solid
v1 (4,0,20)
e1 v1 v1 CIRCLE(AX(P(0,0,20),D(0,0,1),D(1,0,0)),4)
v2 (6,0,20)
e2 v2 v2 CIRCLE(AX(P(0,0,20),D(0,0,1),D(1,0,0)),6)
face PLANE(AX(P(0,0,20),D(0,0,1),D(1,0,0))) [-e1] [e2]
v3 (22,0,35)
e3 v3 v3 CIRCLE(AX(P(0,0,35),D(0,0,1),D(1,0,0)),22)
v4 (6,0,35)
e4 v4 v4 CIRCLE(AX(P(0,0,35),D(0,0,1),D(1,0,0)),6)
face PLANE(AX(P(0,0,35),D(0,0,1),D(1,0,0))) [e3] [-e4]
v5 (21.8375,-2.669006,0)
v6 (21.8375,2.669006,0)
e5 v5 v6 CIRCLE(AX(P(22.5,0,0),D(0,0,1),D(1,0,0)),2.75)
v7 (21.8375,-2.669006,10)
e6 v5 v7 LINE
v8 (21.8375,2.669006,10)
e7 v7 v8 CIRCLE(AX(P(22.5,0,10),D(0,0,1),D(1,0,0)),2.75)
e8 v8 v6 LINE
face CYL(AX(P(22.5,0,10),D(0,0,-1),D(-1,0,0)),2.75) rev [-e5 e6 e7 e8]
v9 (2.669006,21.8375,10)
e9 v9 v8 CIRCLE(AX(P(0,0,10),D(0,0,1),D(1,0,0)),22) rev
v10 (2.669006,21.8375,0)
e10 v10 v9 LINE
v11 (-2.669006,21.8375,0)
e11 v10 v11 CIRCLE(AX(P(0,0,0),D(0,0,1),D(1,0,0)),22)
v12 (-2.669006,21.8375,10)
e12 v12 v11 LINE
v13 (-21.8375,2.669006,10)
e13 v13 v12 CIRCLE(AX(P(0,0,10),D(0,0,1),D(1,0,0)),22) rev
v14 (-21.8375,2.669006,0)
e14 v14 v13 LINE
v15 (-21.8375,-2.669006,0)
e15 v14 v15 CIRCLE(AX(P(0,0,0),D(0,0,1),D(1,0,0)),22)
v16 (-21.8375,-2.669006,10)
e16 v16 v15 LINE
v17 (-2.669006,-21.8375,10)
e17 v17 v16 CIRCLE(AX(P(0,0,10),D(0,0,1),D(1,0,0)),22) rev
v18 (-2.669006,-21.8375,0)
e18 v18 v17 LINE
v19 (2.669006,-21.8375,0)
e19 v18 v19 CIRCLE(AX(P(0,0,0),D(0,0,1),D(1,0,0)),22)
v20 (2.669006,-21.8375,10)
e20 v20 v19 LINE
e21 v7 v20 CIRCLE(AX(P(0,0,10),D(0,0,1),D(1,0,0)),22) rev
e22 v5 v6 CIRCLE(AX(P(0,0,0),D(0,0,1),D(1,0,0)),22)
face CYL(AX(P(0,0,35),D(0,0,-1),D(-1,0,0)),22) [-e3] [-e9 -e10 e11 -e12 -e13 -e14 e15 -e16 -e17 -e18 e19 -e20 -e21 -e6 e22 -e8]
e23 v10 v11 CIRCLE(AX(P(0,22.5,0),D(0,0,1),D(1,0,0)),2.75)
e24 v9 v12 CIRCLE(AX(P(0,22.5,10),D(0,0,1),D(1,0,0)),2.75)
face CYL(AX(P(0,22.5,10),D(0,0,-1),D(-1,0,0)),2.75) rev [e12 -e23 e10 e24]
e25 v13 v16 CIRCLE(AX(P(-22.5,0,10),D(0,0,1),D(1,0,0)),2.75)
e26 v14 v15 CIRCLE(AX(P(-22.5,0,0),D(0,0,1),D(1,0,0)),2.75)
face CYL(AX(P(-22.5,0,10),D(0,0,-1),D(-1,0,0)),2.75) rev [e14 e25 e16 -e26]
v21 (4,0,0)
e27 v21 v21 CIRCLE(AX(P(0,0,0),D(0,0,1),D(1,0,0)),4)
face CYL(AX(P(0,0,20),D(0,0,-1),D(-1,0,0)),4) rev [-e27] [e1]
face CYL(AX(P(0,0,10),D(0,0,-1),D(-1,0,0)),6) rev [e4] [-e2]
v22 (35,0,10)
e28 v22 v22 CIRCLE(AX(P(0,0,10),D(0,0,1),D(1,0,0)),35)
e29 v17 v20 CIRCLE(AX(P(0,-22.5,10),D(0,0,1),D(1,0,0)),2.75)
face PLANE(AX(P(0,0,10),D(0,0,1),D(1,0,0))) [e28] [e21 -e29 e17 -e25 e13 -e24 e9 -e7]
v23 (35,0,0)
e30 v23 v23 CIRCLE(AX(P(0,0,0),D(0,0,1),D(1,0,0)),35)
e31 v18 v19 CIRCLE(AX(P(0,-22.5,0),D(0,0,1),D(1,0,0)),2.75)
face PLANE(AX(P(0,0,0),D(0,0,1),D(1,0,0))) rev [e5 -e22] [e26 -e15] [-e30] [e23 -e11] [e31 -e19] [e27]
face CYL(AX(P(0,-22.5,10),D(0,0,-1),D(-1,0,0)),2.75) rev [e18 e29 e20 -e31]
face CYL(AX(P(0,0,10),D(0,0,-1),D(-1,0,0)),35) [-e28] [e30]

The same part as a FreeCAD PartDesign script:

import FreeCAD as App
import Part
import Sketcher

V = App.Vector
Q = App.Units.Quantity

doc = App.newDocument("Part")
body = doc.addObject("PartDesign::Body", "Body")

# Sketch on XY plane
sketch1 = body.newObject("Sketcher::SketchObject", "Sketch")
sketch1.AttachmentSupport = (doc.getObject("XY_Plane"), [""])
sketch1.MapMode = "FlatFace"
sketch1.addGeometry([
    Part.Circle(V(0, 0, 0), V(0, 0, 1), 35),  # 0
    Part.Circle(V(0, -22.5, 0), V(0, 0, 1), 2.8),  # 1
    Part.Circle(V(-22.5, 0, 0), V(0, 0, 1), 2.8),  # 2
    Part.Circle(V(0, 0, 0), V(0, 0, 1), 6),  # 3
    Part.Circle(V(22.5, 0, 0), V(0, 0, 1), 2.8),  # 4
    Part.Circle(V(0, 22.5, 0), V(0, 0, 1), 2.8),  # 5
], False)
sketch1.addConstraint([
    Sketcher.Constraint("Coincident", 0, 3, -1, 1),
    Sketcher.Constraint("Coincident", 3, 3, -1, 1),
    Sketcher.Constraint("Equal", 1, 2),
    Sketcher.Constraint("Equal", 2, 4),
    Sketcher.Constraint("Equal", 4, 5),
    Sketcher.Constraint("Symmetric", 2, 3, 4, 3, -1, 1),
    Sketcher.Constraint("Symmetric", 1, 3, 5, 3, -1, 1),
    Sketcher.Constraint("PointOnObject", 1, 3, -2),
    Sketcher.Constraint("PointOnObject", 2, 3, -1),
    Sketcher.Constraint("Diameter", 0, Q("70 mm")),
    Sketcher.Constraint("Diameter", 3, Q("12 mm")),
    Sketcher.Constraint("Diameter", 1, Q("5.5 mm")),
    Sketcher.Constraint("DistanceX", 2, 3, 4, 3, Q("45 mm")),
    Sketcher.Constraint("DistanceY", 1, 3, 5, 3, Q("45 mm")),
])
pad1 = body.newObject("PartDesign::Pad", "Pad")
pad1.Profile = sketch1
pad1.Length = 10

# Sketch on XY plane
sketch2 = body.newObject("Sketcher::SketchObject", "Sketch001")
sketch2.AttachmentSupport = (doc.getObject("XY_Plane"), [""])
sketch2.MapMode = "FlatFace"
sketch2.addGeometry([
    Part.Circle(V(0, 0, 0), V(0, 0, 1), 22),
    Part.Circle(V(0, 0, 0), V(0, 0, 1), 6),
], False)
sketch2.addConstraint([
    Sketcher.Constraint("Coincident", 0, 3, -1, 1),
    Sketcher.Constraint("Coincident", 1, 3, -1, 1),
    Sketcher.Constraint("Diameter", 0, Q("44 mm")),
    Sketcher.Constraint("Diameter", 1, Q("12 mm")),
])
pad2 = body.newObject("PartDesign::Pad", "Pad001")
pad2.Profile = sketch2
pad2.Length = 35

# Sketch on XY plane
sketch3 = body.newObject("Sketcher::SketchObject", "Sketch002")
sketch3.AttachmentSupport = (doc.getObject("XY_Plane"), [""])
sketch3.MapMode = "FlatFace"
sketch3.addGeometry([
    Part.Circle(V(0, 0, 0), V(0, 0, 1), 12),
    Part.Circle(V(0, 0, 0), V(0, 0, 1), 4),
], False)
sketch3.addConstraint([
    Sketcher.Constraint("Coincident", 0, 3, -1, 1),
    Sketcher.Constraint("Coincident", 1, 3, -1, 1),
    Sketcher.Constraint("Diameter", 0, Q("24 mm")),
    Sketcher.Constraint("Diameter", 1, Q("8 mm")),
])
pad3 = body.newObject("PartDesign::Pad", "Pad002")
pad3.Profile = sketch3
pad3.Length = 20

doc.recompute()
